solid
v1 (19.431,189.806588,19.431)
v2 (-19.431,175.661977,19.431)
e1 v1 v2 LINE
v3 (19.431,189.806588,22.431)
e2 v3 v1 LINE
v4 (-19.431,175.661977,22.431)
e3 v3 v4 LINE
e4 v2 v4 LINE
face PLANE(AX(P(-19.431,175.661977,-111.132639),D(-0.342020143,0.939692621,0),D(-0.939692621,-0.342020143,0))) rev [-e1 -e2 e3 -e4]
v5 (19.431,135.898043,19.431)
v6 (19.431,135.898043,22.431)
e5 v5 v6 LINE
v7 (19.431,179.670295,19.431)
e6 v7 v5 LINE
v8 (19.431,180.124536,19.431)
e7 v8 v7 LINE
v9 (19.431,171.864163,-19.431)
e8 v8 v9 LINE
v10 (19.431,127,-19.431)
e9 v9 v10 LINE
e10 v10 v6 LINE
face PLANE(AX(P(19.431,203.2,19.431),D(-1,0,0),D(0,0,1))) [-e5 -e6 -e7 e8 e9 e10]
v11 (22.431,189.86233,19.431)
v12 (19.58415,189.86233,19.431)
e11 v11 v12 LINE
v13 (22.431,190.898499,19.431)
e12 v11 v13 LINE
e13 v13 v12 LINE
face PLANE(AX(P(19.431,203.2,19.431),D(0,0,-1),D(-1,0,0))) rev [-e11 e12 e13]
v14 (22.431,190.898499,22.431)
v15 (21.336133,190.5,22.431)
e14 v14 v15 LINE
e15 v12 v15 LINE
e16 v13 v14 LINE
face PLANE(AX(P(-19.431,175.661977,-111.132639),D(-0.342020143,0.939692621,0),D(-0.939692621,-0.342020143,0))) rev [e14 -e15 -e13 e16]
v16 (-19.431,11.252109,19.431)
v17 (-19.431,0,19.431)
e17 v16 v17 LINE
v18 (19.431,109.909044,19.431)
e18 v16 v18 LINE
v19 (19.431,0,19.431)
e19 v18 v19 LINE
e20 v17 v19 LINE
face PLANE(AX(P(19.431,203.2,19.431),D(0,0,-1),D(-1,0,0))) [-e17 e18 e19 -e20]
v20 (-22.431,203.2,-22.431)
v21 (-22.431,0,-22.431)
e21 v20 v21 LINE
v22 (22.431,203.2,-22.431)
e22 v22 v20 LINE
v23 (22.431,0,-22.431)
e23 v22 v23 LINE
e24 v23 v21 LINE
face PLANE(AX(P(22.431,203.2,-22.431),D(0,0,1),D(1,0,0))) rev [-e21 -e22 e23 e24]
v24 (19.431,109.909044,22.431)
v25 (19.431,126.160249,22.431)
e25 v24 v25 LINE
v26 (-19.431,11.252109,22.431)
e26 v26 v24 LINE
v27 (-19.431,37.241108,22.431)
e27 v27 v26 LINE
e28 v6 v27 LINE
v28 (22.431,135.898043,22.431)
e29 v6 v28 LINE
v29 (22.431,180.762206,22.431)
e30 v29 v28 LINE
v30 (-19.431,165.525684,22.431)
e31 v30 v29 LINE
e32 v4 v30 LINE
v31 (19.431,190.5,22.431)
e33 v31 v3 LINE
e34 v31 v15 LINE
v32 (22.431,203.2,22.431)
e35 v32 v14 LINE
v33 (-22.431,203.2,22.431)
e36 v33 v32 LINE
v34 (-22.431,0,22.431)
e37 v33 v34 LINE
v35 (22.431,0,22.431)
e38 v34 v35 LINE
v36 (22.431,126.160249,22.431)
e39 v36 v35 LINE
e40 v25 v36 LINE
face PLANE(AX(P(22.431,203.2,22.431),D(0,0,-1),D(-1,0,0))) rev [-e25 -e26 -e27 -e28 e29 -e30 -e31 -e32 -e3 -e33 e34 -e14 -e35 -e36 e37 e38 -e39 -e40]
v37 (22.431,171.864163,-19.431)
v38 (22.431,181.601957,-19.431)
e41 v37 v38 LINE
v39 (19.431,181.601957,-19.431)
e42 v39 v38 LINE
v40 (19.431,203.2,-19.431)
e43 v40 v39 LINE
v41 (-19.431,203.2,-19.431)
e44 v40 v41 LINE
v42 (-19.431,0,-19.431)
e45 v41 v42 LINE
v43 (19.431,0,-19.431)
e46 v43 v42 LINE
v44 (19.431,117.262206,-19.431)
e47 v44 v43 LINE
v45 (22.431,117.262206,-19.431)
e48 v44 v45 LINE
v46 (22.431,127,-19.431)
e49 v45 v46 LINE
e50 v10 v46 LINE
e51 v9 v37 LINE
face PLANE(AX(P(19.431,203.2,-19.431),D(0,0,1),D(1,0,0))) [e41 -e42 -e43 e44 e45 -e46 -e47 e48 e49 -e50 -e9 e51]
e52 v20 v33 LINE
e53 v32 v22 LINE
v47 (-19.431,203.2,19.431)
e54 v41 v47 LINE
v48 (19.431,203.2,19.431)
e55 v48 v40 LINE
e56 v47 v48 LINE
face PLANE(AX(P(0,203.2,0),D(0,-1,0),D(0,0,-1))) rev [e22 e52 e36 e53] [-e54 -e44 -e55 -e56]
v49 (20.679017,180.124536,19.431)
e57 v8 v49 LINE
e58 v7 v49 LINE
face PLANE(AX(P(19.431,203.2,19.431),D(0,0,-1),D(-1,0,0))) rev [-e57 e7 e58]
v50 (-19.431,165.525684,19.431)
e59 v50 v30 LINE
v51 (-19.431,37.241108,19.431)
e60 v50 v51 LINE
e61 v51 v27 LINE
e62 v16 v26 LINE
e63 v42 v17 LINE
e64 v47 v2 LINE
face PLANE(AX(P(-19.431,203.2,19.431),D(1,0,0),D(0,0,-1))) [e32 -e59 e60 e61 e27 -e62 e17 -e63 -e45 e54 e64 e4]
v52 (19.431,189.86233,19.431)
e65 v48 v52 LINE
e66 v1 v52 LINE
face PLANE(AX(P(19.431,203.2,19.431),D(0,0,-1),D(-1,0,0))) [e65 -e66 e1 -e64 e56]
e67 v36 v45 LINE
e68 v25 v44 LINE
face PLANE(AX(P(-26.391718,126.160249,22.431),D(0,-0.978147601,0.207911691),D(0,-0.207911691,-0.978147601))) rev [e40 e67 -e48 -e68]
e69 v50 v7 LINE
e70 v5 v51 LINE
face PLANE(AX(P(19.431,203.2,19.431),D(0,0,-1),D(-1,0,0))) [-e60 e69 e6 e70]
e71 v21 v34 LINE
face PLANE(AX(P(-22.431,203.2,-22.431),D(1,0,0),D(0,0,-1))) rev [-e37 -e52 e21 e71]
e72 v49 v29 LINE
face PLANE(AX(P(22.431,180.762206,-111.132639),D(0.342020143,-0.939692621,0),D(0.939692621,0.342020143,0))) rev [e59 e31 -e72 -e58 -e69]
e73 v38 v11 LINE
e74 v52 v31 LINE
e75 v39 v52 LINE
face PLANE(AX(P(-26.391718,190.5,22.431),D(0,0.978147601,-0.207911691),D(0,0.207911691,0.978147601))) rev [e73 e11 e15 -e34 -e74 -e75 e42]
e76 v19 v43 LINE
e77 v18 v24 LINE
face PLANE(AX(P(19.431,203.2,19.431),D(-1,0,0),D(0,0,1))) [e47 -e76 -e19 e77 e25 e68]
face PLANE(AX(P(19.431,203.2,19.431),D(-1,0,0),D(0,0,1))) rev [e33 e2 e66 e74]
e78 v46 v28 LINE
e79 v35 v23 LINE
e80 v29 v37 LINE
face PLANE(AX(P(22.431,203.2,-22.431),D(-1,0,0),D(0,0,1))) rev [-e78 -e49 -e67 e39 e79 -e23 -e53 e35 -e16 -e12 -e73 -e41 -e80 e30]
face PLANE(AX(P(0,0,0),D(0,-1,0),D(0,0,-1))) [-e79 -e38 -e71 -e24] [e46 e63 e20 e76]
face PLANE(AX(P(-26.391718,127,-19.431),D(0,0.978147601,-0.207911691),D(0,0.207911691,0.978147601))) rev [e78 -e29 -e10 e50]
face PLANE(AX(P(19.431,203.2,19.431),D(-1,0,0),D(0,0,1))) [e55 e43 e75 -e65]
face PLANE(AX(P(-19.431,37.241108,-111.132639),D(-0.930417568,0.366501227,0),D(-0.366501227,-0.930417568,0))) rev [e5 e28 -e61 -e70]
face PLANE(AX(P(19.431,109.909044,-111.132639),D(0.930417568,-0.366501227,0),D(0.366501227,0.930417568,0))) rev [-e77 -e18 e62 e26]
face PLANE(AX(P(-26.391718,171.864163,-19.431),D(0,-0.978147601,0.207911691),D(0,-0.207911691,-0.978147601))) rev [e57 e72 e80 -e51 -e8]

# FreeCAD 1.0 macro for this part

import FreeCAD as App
import Part
import Sketcher
Q = App.Units.Quantity

doc = App.newDocument("Part")
body = doc.addObject("PartDesign::Body", "Body")

# Sketch on XZ plane
sketch1 = doc.addObject("Sketcher::SketchObject", "Sketch")
body.addObject(sketch1)
sketch1.AttachmentSupport = (doc.XZ_Plane, [""])
sketch1.MapMode = "FlatFace"
sketch1.addGeometry(Part.LineSegment(App.Vector(-22, -22, 0), App.Vector(-22, 22, 0)), False)
sketch1.addGeometry(Part.LineSegment(App.Vector(-22, 22, 0), App.Vector(22, 22, 0)), False)
sketch1.addGeometry(Part.LineSegment(App.Vector(22, 22, 0), App.Vector(22, -22, 0)), False)
sketch1.addGeometry(Part.LineSegment(App.Vector(22, -22, 0), App.Vector(-22, -22, 0)), False)
sketch1.addGeometry(Part.LineSegment(App.Vector(19, 19, 0), App.Vector(-19, 19, 0)), False)
sketch1.addGeometry(Part.LineSegment(App.Vector(-19, 19, 0), App.Vector(-19, -19, 0)), False)
sketch1.addGeometry(Part.LineSegment(App.Vector(-19, -19, 0), App.Vector(19, -19, 0)), False)
sketch1.addGeometry(Part.LineSegment(App.Vector(19, -19, 0), App.Vector(19, 19, 0)), False)
sketch1.addConstraint(Sketcher.Constraint("Coincident", 0, 2, 1, 1))
sketch1.addConstraint(Sketcher.Constraint("Coincident", 1, 2, 2, 1))
sketch1.addConstraint(Sketcher.Constraint("Coincident", 2, 2, 3, 1))
sketch1.addConstraint(Sketcher.Constraint("Coincident", 3, 2, 0, 1))
sketch1.addConstraint(Sketcher.Constraint("Coincident", 4, 2, 5, 1))
sketch1.addConstraint(Sketcher.Constraint("Coincident", 5, 2, 6, 1))
sketch1.addConstraint(Sketcher.Constraint("Coincident", 6, 2, 7, 1))
sketch1.addConstraint(Sketcher.Constraint("Coincident", 7, 2, 4, 1))
sketch1.addConstraint(Sketcher.Constraint("Vertical", 0))
sketch1.addConstraint(Sketcher.Constraint("Horizontal", 1))
sketch1.addConstraint(Sketcher.Constraint("Vertical", 2))
sketch1.addConstraint(Sketcher.Constraint("Horizontal", 3))
sketch1.addConstraint(Sketcher.Constraint("Horizontal", 4))
sketch1.addConstraint(Sketcher.Constraint("Vertical", 5))
sketch1.addConstraint(Sketcher.Constraint("Horizontal", 6))
sketch1.addConstraint(Sketcher.Constraint("Vertical", 7))
sketch1.addConstraint(Sketcher.Constraint("Symmetric", 0, 2, 2, 2, -1, 1))
sketch1.addConstraint(Sketcher.Constraint("Symmetric", 4, 2, 6, 2, -1, 1))
sketch1.addConstraint(Sketcher.Constraint("Equal", 3, 0))
sketch1.addConstraint(Sketcher.Constraint("Equal", 6, 5))
sketch1.addConstraint(Sketcher.Constraint("DistanceX", 4, 2, 4, 1, Q("1.53 in")))
sketch1.addConstraint(Sketcher.Constraint("DistanceX", 1, 1, 1, 2, 44.862))
pad1 = doc.addObject("PartDesign::Pad", "Pad")
body.addObject(pad1)
pad1.Profile = sketch1
pad1.Length = Q("8 in")
pad1.Reversed = True

# Sketch on YZ plane
sketch2 = doc.addObject("Sketcher::SketchObject", "Sketch001")
body.addObject(sketch2)
sketch2.AttachmentSupport = (doc.YZ_Plane, [""])
sketch2.MapMode = "FlatFace"
sketch2.AttachmentOffset = App.Placement(App.Vector(0, 0, 22.431), App.Rotation())
sketch2.addGeometry(Part.LineSegment(App.Vector(182, -19, 0), App.Vector(190, 22, 0)), False)
sketch2.addGeometry(Part.LineSegment(App.Vector(190, 22, 0), App.Vector(181, 22, 0)), False)
sketch2.addGeometry(Part.LineSegment(App.Vector(181, 22, 0), App.Vector(172, -19, 0)), False)
sketch2.addGeometry(Part.LineSegment(App.Vector(172, -19, 0), App.Vector(182, -19, 0)), False)
sketch2.addGeometry(Part.LineSegment(App.Vector(126, 22, 0), App.Vector(117, -19, 0)), False)
sketch2.addGeometry(Part.LineSegment(App.Vector(117, -19, 0), App.Vector(127, -19, 0)), False)
sketch2.addGeometry(Part.LineSegment(App.Vector(127, -19, 0), App.Vector(136, 22, 0)), False)
sketch2.addGeometry(Part.LineSegment(App.Vector(136, 22, 0), App.Vector(126, 22, 0)), False)
sketch2.addConstraint(Sketcher.Constraint("Coincident", 0, 2, 1, 1))
sketch2.addConstraint(Sketcher.Constraint("Coincident", 1, 2, 2, 1))
sketch2.addConstraint(Sketcher.Constraint("Coincident", 2, 2, 3, 1))
sketch2.addConstraint(Sketcher.Constraint("Coincident", 3, 2, 0, 1))
sketch2.addConstraint(Sketcher.Constraint("Coincident", 4, 2, 5, 1))
sketch2.addConstraint(Sketcher.Constraint("Coincident", 5, 2, 6, 1))
sketch2.addConstraint(Sketcher.Constraint("Coincident", 6, 2, 7, 1))
sketch2.addConstraint(Sketcher.Constraint("Coincident", 7, 2, 4, 1))
sketch2.addConstraint(Sketcher.Constraint("Horizontal", 1))
sketch2.addConstraint(Sketcher.Constraint("Horizontal", 3))
sketch2.addConstraint(Sketcher.Constraint("Horizontal", 5))
sketch2.addConstraint(Sketcher.Constraint("Horizontal", 7))
sketch2.addConstraint(Sketcher.Constraint("Parallel", 0, 2))
sketch2.addConstraint(Sketcher.Constraint("Parallel", 2, 4))
sketch2.addConstraint(Sketcher.Constraint("Parallel", 4, 6))
sketch2.addConstraint(Sketcher.Constraint("Horizontal", 3, 2, 4, 2))
sketch2.addConstraint(Sketcher.Constraint("Horizontal", 1, 2, 6, 2))
sketch2.addConstraint(Sketcher.Constraint("Equal", 3, 5))
sketch2.addConstraint(Sketcher.Constraint("DistanceX", -1, 1, 5, 2, Q("5 in")))
sketch2.addConstraint(Sketcher.Constraint("Angle", 0, Q("78 deg")))
sketch2.addConstraint(Sketcher.Constraint("DistanceX", -1, 1, 0, 2, Q("7.5 in")))
sketch2.addConstraint(Sketcher.Constraint("DistanceY", 2, 2, -1, 1, Q("0.765 in")))
sketch2.addConstraint(Sketcher.Constraint("DistanceY", -1, 1, 0, 2, 22.431))
sketch2.addConstraint(Sketcher.Constraint("DistanceX", 1, 2, 1, 1, 9.737794))
pocket1 = doc.addObject("PartDesign::Pocket", "Pocket")
body.addObject(pocket1)
pocket1.Profile = sketch2
pocket1.Length = 3

# Sketch on XY plane
sketch3 = doc.addObject("Sketcher::SketchObject", "Sketch002")
body.addObject(sketch3)
sketch3.AttachmentSupport = (doc.XY_Plane, [""])
sketch3.MapMode = "FlatFace"
sketch3.AttachmentOffset = App.Placement(App.Vector(0, 0, 22.431), App.Rotation())
sketch3.addGeometry(Part.LineSegment(App.Vector(-19, 166, 0), App.Vector(22, 181, 0)), False)
sketch3.addGeometry(Part.LineSegment(App.Vector(22, 181, 0), App.Vector(22, 191, 0)), False)
sketch3.addGeometry(Part.LineSegment(App.Vector(22, 191, 0), App.Vector(-19, 176, 0)), False)
sketch3.addGeometry(Part.LineSegment(App.Vector(-19, 176, 0), App.Vector(-19, 166, 0)), False)
sketch3.addGeometry(Part.LineSegment(App.Vector(-19, 11, 0), App.Vector(19, 110, 0)), False)
sketch3.addGeometry(Part.LineSegment(App.Vector(19, 110, 0), App.Vector(19, 136, 0)), False)
sketch3.addGeometry(Part.LineSegment(App.Vector(19, 136, 0), App.Vector(-19, 37, 0)), False)
sketch3.addGeometry(Part.LineSegment(App.Vector(-19, 37, 0), App.Vector(-19, 11, 0)), False)
sketch3.addConstraint(Sketcher.Constraint("Coincident", 0, 2, 1, 1))
sketch3.addConstraint(Sketcher.Constraint("Coincident", 1, 2, 2, 1))
sketch3.addConstraint(Sketcher.Constraint("Coincident", 2, 2, 3, 1))
sketch3.addConstraint(Sketcher.Constraint("Coincident", 3, 2, 0, 1))
sketch3.addConstraint(Sketcher.Constraint("Coincident", 4, 2, 5, 1))
sketch3.addConstraint(Sketcher.Constraint("Coincident", 5, 2, 6, 1))
sketch3.addConstraint(Sketcher.Constraint("Coincident", 6, 2, 7, 1))
sketch3.addConstraint(Sketcher.Constraint("Coincident", 7, 2, 4, 1))
sketch3.addConstraint(Sketcher.Constraint("Vertical", 1))
sketch3.addConstraint(Sketcher.Constraint("Vertical", 3))
sketch3.addConstraint(Sketcher.Constraint("Vertical", 5))
sketch3.addConstraint(Sketcher.Constraint("Vertical", 7))
sketch3.addConstraint(Sketcher.Constraint("Parallel", 0, 2))
sketch3.addConstraint(Sketcher.Constraint("Parallel", 4, 6))
sketch3.addConstraint(Sketcher.Constraint("Vertical", 3, 2, 6, 2))
sketch3.addConstraint(Sketcher.Constraint("Angle", 0, Q("20 deg")))
sketch3.addConstraint(Sketcher.Constraint("Angle", 4, Q("68.5 deg")))
sketch3.addConstraint(Sketcher.Constraint("DistanceX", 3, 2, 4, 2, Q("1.53 in")))
sketch3.addConstraint(Sketcher.Constraint("DistanceX", 2, 2, -1, 1, Q("0.765 in")))
sketch3.addConstraint(Sketcher.Constraint("DistanceY", 5, 1, 5, 2, 25.988999))
sketch3.addConstraint(Sketcher.Constraint("DistanceX", -1, 1, 0, 2, 22.431))
sketch3.addConstraint(Sketcher.Constraint("DistanceY", -1, 1, 1, 2, 190.898499))
sketch3.addConstraint(Sketcher.Constraint("DistanceY", 1, 1, 1, 2, 10.136293))
sketch3.addConstraint(Sketcher.Constraint("DistanceY", -1, 1, 6, 2, 37.241108))
pocket2 = doc.addObject("PartDesign::Pocket", "Pocket001")
body.addObject(pocket2)
pocket2.Profile = sketch3
pocket2.Length = 3

doc.recompute()
